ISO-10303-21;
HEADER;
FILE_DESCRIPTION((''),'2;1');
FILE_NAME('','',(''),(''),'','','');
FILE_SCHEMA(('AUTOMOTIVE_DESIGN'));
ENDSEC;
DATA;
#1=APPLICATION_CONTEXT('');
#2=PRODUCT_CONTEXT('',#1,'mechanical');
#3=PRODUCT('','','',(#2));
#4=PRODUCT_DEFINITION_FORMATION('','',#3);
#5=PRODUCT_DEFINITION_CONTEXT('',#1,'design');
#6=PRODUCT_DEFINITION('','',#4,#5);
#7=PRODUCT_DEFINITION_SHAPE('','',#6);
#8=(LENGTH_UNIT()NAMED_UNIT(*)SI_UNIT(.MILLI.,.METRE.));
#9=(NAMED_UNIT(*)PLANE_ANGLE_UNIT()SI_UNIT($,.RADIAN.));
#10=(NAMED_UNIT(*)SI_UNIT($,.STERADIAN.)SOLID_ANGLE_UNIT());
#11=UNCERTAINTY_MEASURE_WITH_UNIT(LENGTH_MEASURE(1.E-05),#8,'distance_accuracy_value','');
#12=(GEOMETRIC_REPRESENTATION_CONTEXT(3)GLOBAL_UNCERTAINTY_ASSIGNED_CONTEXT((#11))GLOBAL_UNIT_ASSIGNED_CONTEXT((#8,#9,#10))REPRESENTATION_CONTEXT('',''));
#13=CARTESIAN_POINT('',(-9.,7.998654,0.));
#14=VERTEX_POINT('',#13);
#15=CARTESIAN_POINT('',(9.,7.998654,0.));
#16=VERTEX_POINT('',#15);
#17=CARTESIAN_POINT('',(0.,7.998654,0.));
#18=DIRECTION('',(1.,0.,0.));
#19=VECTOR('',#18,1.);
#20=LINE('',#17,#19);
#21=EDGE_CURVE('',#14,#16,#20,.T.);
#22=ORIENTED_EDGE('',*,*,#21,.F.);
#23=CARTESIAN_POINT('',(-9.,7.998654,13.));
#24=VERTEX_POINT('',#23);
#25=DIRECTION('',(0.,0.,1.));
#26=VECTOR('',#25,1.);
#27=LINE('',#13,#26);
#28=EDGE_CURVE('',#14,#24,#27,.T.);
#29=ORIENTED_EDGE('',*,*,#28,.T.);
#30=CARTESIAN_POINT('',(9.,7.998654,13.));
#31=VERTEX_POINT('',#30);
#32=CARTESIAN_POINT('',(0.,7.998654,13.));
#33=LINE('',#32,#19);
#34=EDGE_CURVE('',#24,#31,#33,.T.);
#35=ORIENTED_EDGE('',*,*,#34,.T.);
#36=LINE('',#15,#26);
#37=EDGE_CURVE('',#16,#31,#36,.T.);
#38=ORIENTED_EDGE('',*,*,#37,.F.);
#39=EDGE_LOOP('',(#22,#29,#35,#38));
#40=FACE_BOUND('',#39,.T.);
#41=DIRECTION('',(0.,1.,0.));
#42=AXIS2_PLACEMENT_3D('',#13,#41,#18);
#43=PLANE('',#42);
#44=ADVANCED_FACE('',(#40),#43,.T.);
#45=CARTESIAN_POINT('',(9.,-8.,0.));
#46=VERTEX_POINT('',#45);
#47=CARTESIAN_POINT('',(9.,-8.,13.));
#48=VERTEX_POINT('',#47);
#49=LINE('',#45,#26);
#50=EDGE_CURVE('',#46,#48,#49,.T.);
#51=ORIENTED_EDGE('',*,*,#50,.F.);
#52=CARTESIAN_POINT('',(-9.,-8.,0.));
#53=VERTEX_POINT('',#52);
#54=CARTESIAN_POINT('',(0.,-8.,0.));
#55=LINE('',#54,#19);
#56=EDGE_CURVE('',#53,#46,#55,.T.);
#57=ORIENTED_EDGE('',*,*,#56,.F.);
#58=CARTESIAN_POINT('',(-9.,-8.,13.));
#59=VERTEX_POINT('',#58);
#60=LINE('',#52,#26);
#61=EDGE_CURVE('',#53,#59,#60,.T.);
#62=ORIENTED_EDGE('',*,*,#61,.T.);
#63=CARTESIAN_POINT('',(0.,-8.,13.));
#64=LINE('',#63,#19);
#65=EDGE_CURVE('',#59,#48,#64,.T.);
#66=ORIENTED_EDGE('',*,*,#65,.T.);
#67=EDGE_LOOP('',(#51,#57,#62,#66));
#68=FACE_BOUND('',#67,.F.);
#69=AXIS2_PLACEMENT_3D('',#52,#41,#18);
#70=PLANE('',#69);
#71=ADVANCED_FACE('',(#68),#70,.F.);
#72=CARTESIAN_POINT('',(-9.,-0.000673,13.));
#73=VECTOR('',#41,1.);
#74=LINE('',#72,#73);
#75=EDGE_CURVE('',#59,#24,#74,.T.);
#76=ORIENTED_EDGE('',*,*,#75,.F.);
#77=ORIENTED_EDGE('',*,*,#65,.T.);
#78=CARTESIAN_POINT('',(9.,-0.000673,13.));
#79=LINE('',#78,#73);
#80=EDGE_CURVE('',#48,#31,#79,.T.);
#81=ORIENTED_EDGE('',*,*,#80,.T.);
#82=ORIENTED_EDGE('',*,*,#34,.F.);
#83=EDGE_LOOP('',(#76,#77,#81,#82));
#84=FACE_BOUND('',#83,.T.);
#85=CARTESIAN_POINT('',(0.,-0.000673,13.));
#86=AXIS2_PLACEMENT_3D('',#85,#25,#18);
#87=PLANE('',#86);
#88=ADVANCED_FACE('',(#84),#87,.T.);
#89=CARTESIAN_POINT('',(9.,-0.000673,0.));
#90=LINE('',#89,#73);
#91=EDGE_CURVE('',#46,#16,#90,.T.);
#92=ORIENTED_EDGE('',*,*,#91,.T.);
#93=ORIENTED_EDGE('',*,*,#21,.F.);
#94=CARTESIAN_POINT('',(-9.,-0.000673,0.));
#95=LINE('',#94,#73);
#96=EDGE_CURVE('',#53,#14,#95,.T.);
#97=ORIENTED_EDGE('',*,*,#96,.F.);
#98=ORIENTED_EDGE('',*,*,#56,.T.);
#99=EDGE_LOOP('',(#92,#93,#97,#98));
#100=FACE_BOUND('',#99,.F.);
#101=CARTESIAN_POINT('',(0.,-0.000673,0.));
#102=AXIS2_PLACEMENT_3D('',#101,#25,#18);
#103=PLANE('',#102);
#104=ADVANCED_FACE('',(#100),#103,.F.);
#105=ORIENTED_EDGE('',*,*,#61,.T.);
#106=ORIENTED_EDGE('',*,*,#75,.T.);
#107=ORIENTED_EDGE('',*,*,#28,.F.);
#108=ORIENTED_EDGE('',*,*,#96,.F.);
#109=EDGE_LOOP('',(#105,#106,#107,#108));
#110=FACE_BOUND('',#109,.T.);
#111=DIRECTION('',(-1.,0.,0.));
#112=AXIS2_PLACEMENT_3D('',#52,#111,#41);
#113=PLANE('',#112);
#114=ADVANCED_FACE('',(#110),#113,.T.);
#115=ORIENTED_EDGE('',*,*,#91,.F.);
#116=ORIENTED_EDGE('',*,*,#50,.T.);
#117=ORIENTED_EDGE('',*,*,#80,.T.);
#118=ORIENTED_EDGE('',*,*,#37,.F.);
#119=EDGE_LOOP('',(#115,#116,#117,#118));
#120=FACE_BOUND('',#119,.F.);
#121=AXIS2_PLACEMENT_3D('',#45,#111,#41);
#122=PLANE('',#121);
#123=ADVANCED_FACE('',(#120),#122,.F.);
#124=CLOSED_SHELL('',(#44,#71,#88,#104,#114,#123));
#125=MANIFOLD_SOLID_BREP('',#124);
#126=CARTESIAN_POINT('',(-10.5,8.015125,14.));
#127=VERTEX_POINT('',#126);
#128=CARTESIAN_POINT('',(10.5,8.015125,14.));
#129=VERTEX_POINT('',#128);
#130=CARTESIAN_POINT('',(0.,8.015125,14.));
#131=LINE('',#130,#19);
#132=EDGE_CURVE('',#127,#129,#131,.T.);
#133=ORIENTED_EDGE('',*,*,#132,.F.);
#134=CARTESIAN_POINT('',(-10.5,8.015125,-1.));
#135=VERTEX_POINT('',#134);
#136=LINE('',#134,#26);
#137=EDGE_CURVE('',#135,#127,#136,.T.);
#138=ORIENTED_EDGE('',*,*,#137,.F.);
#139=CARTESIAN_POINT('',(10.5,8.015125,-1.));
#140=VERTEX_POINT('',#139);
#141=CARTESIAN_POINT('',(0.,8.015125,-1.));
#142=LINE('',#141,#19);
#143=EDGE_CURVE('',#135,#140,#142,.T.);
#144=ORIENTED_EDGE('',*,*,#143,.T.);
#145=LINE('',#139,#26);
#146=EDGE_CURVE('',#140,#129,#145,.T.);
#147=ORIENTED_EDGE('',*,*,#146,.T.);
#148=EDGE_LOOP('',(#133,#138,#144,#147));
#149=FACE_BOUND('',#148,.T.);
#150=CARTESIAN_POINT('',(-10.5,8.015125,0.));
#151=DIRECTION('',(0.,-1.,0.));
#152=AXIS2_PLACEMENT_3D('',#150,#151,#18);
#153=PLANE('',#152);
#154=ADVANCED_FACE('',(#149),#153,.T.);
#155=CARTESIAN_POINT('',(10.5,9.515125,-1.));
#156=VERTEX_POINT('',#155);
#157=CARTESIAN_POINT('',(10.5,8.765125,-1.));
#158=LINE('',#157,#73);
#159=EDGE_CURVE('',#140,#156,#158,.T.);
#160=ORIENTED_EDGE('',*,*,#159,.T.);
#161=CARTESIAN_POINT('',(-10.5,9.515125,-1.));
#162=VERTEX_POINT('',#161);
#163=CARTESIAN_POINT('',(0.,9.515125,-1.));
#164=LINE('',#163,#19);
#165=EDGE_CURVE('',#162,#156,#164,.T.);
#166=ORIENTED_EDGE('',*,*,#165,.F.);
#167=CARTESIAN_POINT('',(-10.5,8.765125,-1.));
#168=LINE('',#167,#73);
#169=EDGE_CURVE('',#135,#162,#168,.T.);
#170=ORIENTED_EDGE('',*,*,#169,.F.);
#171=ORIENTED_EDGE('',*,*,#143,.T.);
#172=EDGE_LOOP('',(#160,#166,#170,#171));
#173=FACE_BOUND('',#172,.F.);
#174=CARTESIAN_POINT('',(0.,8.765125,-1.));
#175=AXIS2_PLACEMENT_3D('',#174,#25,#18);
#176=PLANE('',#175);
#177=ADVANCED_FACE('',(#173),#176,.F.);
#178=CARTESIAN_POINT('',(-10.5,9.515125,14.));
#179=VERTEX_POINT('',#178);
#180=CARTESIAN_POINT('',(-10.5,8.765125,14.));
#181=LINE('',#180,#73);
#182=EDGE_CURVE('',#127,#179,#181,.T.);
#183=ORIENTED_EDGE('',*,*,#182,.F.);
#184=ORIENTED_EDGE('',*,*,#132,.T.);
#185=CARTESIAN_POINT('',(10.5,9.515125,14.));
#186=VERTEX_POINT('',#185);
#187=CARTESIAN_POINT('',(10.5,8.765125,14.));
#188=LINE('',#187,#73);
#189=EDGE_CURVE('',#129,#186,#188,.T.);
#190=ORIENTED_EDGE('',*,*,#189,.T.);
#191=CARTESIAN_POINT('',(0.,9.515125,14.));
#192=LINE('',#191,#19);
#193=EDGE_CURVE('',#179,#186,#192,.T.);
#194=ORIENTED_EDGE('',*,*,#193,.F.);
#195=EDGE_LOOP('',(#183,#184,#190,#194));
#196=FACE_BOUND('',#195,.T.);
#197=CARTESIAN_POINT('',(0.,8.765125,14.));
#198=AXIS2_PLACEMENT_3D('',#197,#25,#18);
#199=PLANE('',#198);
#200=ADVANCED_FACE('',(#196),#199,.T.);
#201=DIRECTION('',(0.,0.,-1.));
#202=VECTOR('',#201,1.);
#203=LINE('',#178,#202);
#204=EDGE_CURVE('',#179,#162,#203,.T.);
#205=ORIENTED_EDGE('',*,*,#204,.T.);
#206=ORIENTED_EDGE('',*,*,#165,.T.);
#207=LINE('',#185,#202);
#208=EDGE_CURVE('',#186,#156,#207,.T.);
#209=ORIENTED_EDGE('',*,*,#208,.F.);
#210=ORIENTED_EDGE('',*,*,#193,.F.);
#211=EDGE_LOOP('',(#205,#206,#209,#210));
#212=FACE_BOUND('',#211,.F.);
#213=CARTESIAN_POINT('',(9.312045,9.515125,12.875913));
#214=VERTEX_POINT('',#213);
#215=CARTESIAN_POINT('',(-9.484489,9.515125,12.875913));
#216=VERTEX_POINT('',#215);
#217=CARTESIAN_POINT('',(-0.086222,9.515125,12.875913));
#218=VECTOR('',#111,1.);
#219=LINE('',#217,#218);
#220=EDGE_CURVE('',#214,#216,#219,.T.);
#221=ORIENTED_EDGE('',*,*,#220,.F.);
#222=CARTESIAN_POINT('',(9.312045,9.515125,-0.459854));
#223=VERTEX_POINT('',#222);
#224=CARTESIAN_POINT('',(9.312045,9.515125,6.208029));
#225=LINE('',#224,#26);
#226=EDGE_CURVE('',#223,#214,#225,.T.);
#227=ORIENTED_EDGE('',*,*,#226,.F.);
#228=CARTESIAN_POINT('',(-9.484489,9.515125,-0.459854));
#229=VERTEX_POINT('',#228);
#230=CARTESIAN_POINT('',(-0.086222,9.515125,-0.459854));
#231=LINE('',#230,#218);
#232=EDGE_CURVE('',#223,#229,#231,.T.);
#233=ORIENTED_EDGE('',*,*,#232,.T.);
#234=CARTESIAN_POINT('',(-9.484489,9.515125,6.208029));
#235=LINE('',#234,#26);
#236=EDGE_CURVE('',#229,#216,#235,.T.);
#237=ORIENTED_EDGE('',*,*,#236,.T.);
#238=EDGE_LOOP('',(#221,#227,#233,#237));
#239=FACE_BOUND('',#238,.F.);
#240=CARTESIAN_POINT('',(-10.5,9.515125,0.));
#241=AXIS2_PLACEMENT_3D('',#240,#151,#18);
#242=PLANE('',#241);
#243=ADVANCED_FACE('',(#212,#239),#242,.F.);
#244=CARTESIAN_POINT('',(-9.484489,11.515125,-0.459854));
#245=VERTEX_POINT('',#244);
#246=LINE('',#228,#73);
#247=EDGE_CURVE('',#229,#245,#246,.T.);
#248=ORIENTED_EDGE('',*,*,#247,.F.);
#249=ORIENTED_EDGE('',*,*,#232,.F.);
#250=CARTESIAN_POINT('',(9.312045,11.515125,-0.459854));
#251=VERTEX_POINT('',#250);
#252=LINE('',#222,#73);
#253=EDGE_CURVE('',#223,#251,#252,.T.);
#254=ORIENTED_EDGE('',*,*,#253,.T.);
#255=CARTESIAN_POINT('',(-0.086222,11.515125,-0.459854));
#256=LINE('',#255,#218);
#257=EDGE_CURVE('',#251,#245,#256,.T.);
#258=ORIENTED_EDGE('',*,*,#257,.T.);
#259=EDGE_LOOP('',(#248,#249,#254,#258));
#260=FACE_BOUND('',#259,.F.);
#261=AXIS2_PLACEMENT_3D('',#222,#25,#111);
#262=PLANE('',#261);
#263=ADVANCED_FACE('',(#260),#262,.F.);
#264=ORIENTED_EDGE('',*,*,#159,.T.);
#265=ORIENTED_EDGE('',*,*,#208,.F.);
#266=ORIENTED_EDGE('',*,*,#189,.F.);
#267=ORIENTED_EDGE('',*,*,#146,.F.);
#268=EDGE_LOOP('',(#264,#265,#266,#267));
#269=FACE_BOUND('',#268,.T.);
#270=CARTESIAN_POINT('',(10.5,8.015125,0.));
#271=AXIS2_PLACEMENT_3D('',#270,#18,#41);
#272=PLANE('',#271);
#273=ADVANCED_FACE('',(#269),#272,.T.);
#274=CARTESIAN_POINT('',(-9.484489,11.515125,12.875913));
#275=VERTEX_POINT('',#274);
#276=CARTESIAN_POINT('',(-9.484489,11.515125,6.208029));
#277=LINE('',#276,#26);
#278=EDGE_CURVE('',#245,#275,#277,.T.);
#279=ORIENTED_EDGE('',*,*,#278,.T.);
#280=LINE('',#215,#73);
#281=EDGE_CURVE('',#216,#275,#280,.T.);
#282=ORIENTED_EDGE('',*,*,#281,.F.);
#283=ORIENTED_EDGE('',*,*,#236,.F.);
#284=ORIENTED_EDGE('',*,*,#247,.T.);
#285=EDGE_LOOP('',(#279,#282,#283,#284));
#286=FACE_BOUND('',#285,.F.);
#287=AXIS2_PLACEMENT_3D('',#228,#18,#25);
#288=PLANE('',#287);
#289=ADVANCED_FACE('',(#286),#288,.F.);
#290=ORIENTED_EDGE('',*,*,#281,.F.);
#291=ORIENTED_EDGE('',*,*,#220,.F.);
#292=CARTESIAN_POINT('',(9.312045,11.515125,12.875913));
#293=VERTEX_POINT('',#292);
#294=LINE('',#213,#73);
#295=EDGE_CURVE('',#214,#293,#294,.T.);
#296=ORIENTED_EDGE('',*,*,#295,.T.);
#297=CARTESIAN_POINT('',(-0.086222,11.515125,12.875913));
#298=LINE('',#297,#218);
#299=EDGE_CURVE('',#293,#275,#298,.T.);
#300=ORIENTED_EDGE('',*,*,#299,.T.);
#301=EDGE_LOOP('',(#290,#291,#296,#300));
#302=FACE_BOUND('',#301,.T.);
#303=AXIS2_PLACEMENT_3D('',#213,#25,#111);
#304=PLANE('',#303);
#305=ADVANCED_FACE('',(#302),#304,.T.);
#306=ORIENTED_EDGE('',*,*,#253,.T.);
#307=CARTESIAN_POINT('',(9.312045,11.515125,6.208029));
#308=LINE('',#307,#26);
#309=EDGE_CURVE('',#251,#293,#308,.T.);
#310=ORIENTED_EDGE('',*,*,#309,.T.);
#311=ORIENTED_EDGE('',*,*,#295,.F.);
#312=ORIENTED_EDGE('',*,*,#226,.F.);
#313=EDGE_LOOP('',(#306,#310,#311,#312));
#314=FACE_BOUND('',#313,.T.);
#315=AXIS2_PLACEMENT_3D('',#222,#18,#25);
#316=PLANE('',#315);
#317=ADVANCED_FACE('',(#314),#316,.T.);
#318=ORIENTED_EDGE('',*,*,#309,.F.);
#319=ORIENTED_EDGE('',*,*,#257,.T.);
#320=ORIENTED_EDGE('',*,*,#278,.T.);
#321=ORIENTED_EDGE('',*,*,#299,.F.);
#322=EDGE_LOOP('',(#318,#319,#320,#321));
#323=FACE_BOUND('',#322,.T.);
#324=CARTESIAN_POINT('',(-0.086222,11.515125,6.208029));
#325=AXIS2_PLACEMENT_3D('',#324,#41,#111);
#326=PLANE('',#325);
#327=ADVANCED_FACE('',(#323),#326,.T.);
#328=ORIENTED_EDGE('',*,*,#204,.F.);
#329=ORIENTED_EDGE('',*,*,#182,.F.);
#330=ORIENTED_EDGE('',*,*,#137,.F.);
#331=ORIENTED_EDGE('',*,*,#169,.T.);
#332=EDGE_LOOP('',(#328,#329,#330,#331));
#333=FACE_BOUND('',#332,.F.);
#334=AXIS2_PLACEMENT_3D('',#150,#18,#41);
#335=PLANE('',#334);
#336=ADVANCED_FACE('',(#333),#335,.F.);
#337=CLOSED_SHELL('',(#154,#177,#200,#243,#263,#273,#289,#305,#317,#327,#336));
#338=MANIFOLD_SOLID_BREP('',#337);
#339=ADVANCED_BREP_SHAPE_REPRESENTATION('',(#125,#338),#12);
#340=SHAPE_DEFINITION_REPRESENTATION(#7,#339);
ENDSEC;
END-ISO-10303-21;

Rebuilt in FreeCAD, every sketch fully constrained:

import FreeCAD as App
import Part
import Sketcher
from FreeCAD import Vector


def add_polygon(sketch, points):
    """Adds a closed chain of lines whose ends are joined by coincident constraints."""
    first, n = sketch.GeometryCount, len(points)
    for a, b in zip(points, points[1:] + points[:1]):
        sketch.addGeometry(Part.LineSegment(App.Vector(*a, 0), App.Vector(*b, 0)), False)
    for i in range(n):
        sketch.addConstraint(Sketcher.Constraint("Coincident", first + i, 2, first + (i + 1) % n, 1))

doc = App.newDocument("Part")
body = doc.addObject("PartDesign::Body", "Body")

sketch1 = body.newObject("Sketcher::SketchObject", "Sketch")
sketch1.AttachmentSupport = (doc.getObject("XY_Plane"), [""])
sketch1.MapMode = "FlatFace"
add_polygon(sketch1, [(-9, 8), (-9, -8), (9, -8), (9, 8)])
sketch1.addConstraint(Sketcher.Constraint("Vertical", 0))
sketch1.addConstraint(Sketcher.Constraint("Horizontal", 1))
sketch1.addConstraint(Sketcher.Constraint("Vertical", 2))
sketch1.addConstraint(Sketcher.Constraint("Horizontal", 3))
sketch1.addConstraint(Sketcher.Constraint("DistanceX", 1, 1, 1, 2, 18.0))
sketch1.addConstraint(Sketcher.Constraint("DistanceX", 0, 2, -1, 1, 9.0))
sketch1.addConstraint(Sketcher.Constraint("DistanceY", 0, 2, -1, 1, 8.0))
sketch1.addConstraint(Sketcher.Constraint("DistanceY", 0, 2, 0, 1, 15.998654))
pad1 = body.newObject("PartDesign::Pad", "Pad")
pad1.Profile = sketch1
pad1.Length = 13
body2 = doc.addObject("PartDesign::Body", "Body001")

sketch2 = body2.newObject("Sketcher::SketchObject", "Sketch001")
sketch2.AttachmentSupport = (doc.getObject("XY_Plane001"), [""])
sketch2.MapMode = "FlatFace"
add_polygon(sketch2, [(-10.5, 9.5), (-10.5, 8), (10.5, 8), (10.5, 9.5)])
sketch2.addConstraint(Sketcher.Constraint("Vertical", 0))
sketch2.addConstraint(Sketcher.Constraint("Horizontal", 1))
sketch2.addConstraint(Sketcher.Constraint("Vertical", 2))
sketch2.addConstraint(Sketcher.Constraint("Horizontal", 3))
sketch2.addConstraint(Sketcher.Constraint("DistanceX", 1, 1, 1, 2, 21.0))
sketch2.addConstraint(Sketcher.Constraint("DistanceY", 0, 2, 0, 1, 1.5))
sketch2.addConstraint(Sketcher.Constraint("DistanceX", 0, 2, -1, 1, 10.5))
sketch2.addConstraint(Sketcher.Constraint("DistanceY", -1, 1, 0, 2, 8.015125))
pad2 = body2.newObject("PartDesign::Pad", "Pad001")
pad2.Profile = sketch2
pad2.Type = "TwoLengths"
pad2.Length = 14
pad2.Length2 = 1

sketch3 = body2.newObject("Sketcher::SketchObject", "Sketch002")
sketch3.AttachmentSupport = (doc.getObject("XZ_Plane001"), [""])
sketch3.MapMode = "FlatFace"
sketch3.AttachmentOffset = App.Placement(Vector(0, 0, -9.515125), App.Rotation())
add_polygon(sketch3, [(9, 13), (9, 0), (-9, 0), (-9, 13)])
sketch3.addConstraint(Sketcher.Constraint("Vertical", 0))
sketch3.addConstraint(Sketcher.Constraint("Horizontal", 1))
sketch3.addConstraint(Sketcher.Constraint("Vertical", 2))
sketch3.addConstraint(Sketcher.Constraint("Horizontal", 3))
sketch3.addConstraint(Sketcher.Constraint("DistanceX", 1, 2, 1, 1, 18.796534))
sketch3.addConstraint(Sketcher.Constraint("DistanceY", 0, 2, 0, 1, 13.335767))
sketch3.addConstraint(Sketcher.Constraint("DistanceX", 1, 2, -1, 1, 9.484489))
sketch3.addConstraint(Sketcher.Constraint("DistanceY", 0, 2, -1, 1, 0.459854))
pad3 = body2.newObject("PartDesign::Pad", "Pad002")
pad3.Profile = sketch3
pad3.Length = 2
pad3.Reversed = True

doc.recompute()
